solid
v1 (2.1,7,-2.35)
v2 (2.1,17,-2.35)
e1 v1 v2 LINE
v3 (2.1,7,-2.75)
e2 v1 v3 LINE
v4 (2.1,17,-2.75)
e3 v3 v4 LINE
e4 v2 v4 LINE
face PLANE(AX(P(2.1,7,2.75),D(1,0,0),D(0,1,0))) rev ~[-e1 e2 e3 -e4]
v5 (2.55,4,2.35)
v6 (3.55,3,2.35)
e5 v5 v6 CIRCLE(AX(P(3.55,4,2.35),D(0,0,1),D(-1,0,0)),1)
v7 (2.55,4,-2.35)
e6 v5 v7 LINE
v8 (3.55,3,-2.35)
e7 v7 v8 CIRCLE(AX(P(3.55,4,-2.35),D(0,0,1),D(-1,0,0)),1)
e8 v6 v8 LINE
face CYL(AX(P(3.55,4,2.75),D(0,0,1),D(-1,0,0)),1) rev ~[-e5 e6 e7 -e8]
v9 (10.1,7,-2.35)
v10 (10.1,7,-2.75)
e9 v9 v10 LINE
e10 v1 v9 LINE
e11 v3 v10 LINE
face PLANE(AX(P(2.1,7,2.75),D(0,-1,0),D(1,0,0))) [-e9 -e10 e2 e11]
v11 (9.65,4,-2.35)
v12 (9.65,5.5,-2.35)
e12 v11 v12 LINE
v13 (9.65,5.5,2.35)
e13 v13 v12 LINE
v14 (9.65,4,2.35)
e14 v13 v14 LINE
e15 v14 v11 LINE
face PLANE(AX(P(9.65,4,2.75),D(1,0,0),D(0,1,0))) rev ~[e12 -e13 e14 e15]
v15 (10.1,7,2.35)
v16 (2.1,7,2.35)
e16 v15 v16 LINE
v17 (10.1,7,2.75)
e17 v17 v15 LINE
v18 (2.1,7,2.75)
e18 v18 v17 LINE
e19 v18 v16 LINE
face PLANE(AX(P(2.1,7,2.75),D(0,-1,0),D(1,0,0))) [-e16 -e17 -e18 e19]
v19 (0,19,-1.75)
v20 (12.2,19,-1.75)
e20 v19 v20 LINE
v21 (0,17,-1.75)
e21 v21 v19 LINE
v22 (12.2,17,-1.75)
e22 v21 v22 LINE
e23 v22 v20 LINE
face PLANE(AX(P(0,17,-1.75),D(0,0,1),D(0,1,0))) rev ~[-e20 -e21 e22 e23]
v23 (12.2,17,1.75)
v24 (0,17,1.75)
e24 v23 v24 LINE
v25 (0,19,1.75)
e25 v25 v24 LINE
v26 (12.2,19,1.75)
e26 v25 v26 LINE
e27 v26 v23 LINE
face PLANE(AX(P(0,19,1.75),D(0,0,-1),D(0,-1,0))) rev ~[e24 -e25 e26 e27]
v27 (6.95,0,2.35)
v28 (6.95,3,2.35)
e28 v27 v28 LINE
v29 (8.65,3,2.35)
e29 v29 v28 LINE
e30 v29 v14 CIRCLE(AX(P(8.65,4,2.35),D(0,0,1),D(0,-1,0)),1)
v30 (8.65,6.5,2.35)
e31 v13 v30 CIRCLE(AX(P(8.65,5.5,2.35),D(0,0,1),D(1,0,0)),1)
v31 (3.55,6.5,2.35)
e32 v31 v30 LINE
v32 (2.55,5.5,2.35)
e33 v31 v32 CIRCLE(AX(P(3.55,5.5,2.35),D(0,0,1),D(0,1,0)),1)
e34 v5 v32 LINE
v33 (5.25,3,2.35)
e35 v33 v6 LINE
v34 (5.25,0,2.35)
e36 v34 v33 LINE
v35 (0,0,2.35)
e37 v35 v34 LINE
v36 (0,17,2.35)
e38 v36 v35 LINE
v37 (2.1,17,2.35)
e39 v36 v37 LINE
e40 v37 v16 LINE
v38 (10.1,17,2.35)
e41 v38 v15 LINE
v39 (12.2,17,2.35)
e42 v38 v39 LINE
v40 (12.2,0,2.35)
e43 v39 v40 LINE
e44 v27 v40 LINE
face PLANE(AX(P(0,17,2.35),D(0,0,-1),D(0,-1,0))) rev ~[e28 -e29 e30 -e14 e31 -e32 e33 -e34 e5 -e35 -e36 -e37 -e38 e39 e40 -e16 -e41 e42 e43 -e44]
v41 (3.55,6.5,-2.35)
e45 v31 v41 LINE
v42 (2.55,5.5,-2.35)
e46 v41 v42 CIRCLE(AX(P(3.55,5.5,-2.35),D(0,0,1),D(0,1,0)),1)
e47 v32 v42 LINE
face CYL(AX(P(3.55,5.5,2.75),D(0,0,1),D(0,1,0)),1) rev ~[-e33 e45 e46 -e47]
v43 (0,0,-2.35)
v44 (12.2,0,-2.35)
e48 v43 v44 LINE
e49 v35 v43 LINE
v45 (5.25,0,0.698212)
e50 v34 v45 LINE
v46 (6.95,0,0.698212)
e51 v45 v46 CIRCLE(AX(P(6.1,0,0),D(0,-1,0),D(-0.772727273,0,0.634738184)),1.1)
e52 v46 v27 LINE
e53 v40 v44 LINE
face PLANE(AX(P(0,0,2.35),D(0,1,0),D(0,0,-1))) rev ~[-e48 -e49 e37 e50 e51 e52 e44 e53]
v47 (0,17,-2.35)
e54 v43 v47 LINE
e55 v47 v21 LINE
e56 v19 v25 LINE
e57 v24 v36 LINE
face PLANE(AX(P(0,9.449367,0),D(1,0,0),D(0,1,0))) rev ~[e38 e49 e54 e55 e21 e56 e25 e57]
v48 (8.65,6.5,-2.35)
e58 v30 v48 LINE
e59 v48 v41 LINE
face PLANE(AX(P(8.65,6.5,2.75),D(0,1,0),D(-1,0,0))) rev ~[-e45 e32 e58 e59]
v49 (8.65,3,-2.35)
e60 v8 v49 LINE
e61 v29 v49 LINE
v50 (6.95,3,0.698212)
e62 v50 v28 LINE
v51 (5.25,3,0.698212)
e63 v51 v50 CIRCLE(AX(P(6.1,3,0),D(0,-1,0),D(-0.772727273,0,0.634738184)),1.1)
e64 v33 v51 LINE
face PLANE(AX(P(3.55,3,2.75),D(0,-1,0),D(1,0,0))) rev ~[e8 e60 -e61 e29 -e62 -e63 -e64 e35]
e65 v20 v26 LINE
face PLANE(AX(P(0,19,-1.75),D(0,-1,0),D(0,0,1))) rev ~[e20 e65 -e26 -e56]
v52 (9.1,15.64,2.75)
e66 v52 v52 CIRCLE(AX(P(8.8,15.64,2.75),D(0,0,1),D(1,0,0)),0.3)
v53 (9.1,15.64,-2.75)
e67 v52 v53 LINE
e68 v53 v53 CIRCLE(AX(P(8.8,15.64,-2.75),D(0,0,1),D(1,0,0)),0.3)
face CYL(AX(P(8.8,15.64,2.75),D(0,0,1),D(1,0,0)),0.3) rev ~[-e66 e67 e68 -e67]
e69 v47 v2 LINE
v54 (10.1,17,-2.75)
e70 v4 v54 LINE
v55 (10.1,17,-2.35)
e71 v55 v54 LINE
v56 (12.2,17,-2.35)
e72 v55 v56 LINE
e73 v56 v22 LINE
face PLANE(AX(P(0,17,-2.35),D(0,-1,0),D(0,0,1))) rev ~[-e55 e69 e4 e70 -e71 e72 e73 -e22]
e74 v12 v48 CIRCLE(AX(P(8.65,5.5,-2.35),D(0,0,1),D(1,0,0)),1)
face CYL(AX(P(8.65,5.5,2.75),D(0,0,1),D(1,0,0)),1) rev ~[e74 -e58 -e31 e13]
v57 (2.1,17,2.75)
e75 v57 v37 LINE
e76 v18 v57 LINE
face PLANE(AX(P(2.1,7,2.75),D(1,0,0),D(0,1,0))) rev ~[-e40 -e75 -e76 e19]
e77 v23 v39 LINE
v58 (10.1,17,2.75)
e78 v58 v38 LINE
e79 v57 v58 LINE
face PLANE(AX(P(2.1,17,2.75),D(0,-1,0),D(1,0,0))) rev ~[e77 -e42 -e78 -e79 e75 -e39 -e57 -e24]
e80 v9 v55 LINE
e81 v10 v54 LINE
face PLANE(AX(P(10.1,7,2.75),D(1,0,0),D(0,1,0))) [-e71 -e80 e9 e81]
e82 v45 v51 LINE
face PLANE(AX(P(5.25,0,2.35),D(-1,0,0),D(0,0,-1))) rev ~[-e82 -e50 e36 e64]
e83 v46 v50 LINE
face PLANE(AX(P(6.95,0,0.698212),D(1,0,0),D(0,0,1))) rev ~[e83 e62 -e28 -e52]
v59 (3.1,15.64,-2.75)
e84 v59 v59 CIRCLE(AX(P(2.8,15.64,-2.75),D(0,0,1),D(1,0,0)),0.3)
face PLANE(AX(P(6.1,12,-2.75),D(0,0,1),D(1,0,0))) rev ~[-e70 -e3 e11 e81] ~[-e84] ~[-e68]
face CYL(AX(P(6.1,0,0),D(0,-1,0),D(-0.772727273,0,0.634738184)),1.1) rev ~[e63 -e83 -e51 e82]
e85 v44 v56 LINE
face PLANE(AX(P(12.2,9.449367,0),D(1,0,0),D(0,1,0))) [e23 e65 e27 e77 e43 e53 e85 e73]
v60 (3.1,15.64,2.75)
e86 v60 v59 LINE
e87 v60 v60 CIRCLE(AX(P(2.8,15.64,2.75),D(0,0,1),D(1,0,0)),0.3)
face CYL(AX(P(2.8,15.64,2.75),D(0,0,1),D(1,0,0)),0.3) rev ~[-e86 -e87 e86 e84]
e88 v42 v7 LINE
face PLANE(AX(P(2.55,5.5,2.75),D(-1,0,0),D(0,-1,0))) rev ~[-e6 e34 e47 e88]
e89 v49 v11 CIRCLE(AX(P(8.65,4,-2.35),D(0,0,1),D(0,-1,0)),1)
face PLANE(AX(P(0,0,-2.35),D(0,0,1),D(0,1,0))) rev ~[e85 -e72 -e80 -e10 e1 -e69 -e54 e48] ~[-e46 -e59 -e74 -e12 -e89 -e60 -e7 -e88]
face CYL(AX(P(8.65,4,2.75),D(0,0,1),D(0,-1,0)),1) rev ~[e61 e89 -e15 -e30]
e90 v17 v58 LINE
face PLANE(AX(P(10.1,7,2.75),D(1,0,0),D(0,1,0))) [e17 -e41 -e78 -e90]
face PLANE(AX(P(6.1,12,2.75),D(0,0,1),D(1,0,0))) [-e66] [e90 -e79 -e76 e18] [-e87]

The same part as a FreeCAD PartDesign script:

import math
import FreeCAD as App
import Part
import Sketcher
Q = App.Units.Quantity

doc = App.newDocument("Part")
body = doc.addObject("PartDesign::Body", "Body")

sketch1 = body.newObject("Sketcher::SketchObject", "Sketch")
sketch1.AttachmentSupport = (doc.getObject("YZ_Plane"), [""])
sketch1.MapMode = "FlatFace"
sketch1.addGeometry([
    Part.LineSegment(App.Vector(0, 2.4, 0), App.Vector(0, -2.4, 0)),
    Part.LineSegment(App.Vector(0, -2.4, 0), App.Vector(17, -2.4, 0)),
    Part.LineSegment(App.Vector(17, -2.4, 0), App.Vector(17, -1.8, 0)),
    Part.LineSegment(App.Vector(17, -1.8, 0), App.Vector(19, -1.8, 0)),
    Part.LineSegment(App.Vector(19, -1.8, 0), App.Vector(19, 1.8, 0)),
    Part.LineSegment(App.Vector(19, 1.8, 0), App.Vector(17, 1.8, 0)),
    Part.LineSegment(App.Vector(17, 1.8, 0), App.Vector(17, 2.4, 0)),
    Part.LineSegment(App.Vector(17, 2.4, 0), App.Vector(0, 2.4, 0)),
], False)
sketch1.addConstraint([
    Sketcher.Constraint("Coincident", 0, 2, 1, 1),
    Sketcher.Constraint("Coincident", 1, 2, 2, 1),
    Sketcher.Constraint("Coincident", 2, 2, 3, 1),
    Sketcher.Constraint("Coincident", 3, 2, 4, 1),
    Sketcher.Constraint("Coincident", 4, 2, 5, 1),
    Sketcher.Constraint("Coincident", 5, 2, 6, 1),
    Sketcher.Constraint("Coincident", 6, 2, 7, 1),
    Sketcher.Constraint("Coincident", 7, 2, 0, 1),
    Sketcher.Constraint("Vertical", 0),
    Sketcher.Constraint("Horizontal", 1),
    Sketcher.Constraint("Vertical", 2),
    Sketcher.Constraint("Horizontal", 3),
    Sketcher.Constraint("Vertical", 4),
    Sketcher.Constraint("Horizontal", 5),
    Sketcher.Constraint("Vertical", 6),
    Sketcher.Constraint("Horizontal", 7),
    Sketcher.Constraint("Symmetric", 0, 2, 7, 2, -1, 1),
    Sketcher.Constraint("Symmetric", 2, 2, 5, 2, -1),
    Sketcher.Constraint("DistanceX", 1, 1, 1, 2, Q("17 mm")),
    Sketcher.Constraint("DistanceX", 3, 1, 3, 2, Q("2 mm")),
    Sketcher.Constraint("DistanceY", 0, 2, 0, 1, Q("4.7 mm")),
    Sketcher.Constraint("DistanceY", 2, 1, 2, 2, Q("0.6 mm")),
])
pad1 = body.newObject("PartDesign::Pad", "Pad")
pad1.Profile = sketch1
pad1.Length = 12.2

sketch2 = body.newObject("Sketcher::SketchObject", "Sketch001")
sketch2.AttachmentSupport = (doc.getObject("XY_Plane"), [""])
sketch2.MapMode = "FlatFace"
sketch2.AttachmentOffset = App.Placement(App.Vector(0, 0, 2.75), App.Rotation())
sketch2.addGeometry([
    Part.LineSegment(App.Vector(2, 17, 0), App.Vector(2, 7, 0)),
    Part.LineSegment(App.Vector(2, 7, 0), App.Vector(10, 7, 0)),
    Part.LineSegment(App.Vector(10, 7, 0), App.Vector(10, 17, 0)),
    Part.LineSegment(App.Vector(10, 17, 0), App.Vector(2, 17, 0)),
], False)
sketch2.addConstraint([
    Sketcher.Constraint("Coincident", 0, 2, 1, 1),
    Sketcher.Constraint("Coincident", 1, 2, 2, 1),
    Sketcher.Constraint("Coincident", 2, 2, 3, 1),
    Sketcher.Constraint("Coincident", 3, 2, 0, 1),
    Sketcher.Constraint("Vertical", 0),
    Sketcher.Constraint("Horizontal", 1),
    Sketcher.Constraint("Vertical", 2),
    Sketcher.Constraint("Horizontal", 3),
    Sketcher.Constraint("DistanceX", 1, 1, 1, 2, Q("8 mm")),
    Sketcher.Constraint("DistanceY", 0, 2, 0, 1, Q("10 mm")),
    Sketcher.Constraint("DistanceY", -1, 1, 0, 2, Q("7 mm")),
    Sketcher.Constraint("DistanceX", -1, 1, 0, 2, Q("2.1 mm")),
])
pad2 = body.newObject("PartDesign::Pad", "Pad001")
pad2.Profile = sketch2
pad2.Length = 5.5
pad2.Reversed = True

sketch3 = body.newObject("Sketcher::SketchObject", "Sketch002")
sketch3.AttachmentSupport = (doc.getObject("XY_Plane"), [""])
sketch3.MapMode = "FlatFace"
sketch3.AttachmentOffset = App.Placement(App.Vector(0, 0, 2.75), App.Rotation())
sketch3.addGeometry([
    Part.ArcOfCircle(Part.Circle(App.Vector(3.55, 4, 0), App.Vector(0, 0, 1), 1), math.radians(180), math.radians(270)),
    Part.LineSegment(App.Vector(3.55, 3, 0), App.Vector(8.65, 3, 0)),
    Part.ArcOfCircle(Part.Circle(App.Vector(8.65, 4, 0), App.Vector(0, 0, 1), 1), math.radians(-90), math.radians(0)),
    Part.LineSegment(App.Vector(9.65, 4, 0), App.Vector(9.65, 5.5, 0)),
    Part.ArcOfCircle(Part.Circle(App.Vector(8.65, 5.5, 0), App.Vector(0, 0, 1), 1), math.radians(0), math.radians(90)),
    Part.LineSegment(App.Vector(8.65, 6.5, 0), App.Vector(3.55, 6.5, 0)),
    Part.ArcOfCircle(Part.Circle(App.Vector(3.55, 5.5, 0), App.Vector(0, 0, 1), 1), math.radians(90), math.radians(180)),
    Part.LineSegment(App.Vector(2.55, 5.5, 0), App.Vector(2.55, 4, 0)),
    Part.Circle(App.Vector(2.8, 15.64, 0), App.Vector(0, 0, 1), 0.3),
    Part.Circle(App.Vector(8.8, 15.64, 0), App.Vector(0, 0, 1), 0.3),
], False)
sketch3.addConstraint([
    Sketcher.Constraint("Tangent", 0, 2, 1, 1),
    Sketcher.Constraint("Tangent", 1, 2, 2, 1),
    Sketcher.Constraint("Tangent", 2, 2, 3, 1),
    Sketcher.Constraint("Tangent", 3, 2, 4, 1),
    Sketcher.Constraint("Tangent", 4, 2, 5, 1),
    Sketcher.Constraint("Tangent", 5, 2, 6, 1),
    Sketcher.Constraint("Tangent", 6, 2, 7, 1),
    Sketcher.Constraint("Tangent", 7, 2, 0, 1),
    Sketcher.Constraint("Horizontal", 1),
    Sketcher.Constraint("Vertical", 3),
    Sketcher.Constraint("Horizontal", 5),
    Sketcher.Constraint("Vertical", 7),
    Sketcher.Constraint("Equal", 0, 2),
    Sketcher.Constraint("Equal", 2, 4),
    Sketcher.Constraint("Equal", 4, 6),
    Sketcher.Constraint("Equal", 8, 9),
    Sketcher.Constraint("Horizontal", 8, 3, 9, 3),
    Sketcher.Constraint("Radius", 0, Q("1 mm")),
    Sketcher.Constraint("Diameter", 8, Q("0.6 mm")),
    Sketcher.Constraint("DistanceX", 1, 1, 1, 2, Q("5.1 mm")),
    Sketcher.Constraint("DistanceY", 3, 1, 3, 2, Q("1.5 mm")),
    Sketcher.Constraint("DistanceY", -1, 1, 0, 3, Q("4 mm")),
    Sketcher.Constraint("DistanceX", 8, 3, 9, 3, Q("6 mm")),
    Sketcher.Constraint("DistanceX", -1, 1, 8, 3, Q("2.8 mm")),
    Sketcher.Constraint("DistanceX", -1, 1, 0, 3, Q("3.55 mm")),
    Sketcher.Constraint("DistanceY", -1, 1, 8, 3, Q("15.64 mm")),
])
pocket1 = body.newObject("PartDesign::Pocket", "Pocket")
pocket1.Profile = sketch3
pocket1.Type = "ThroughAll"

sketch4 = body.newObject("Sketcher::SketchObject", "Sketch003")
sketch4.AttachmentSupport = (doc.getObject("XZ_Plane"), [""])
sketch4.MapMode = "FlatFace"
sketch4.addGeometry([
    Part.LineSegment(App.Vector(7, 2.4, 0), App.Vector(5.2, 2.4, 0)),
    Part.LineSegment(App.Vector(5.2, 2.4, 0), App.Vector(5.2, 0.7, 0)),
    Part.ArcOfCircle(Part.Circle(App.Vector(6.1, 0, 0), App.Vector(0, 0, 1), 1.1), math.radians(141), math.radians(399)),
    Part.LineSegment(App.Vector(7, 0.7, 0), App.Vector(7, 2.4, 0)),
], False)
sketch4.addConstraint([
    Sketcher.Constraint("Coincident", 0, 2, 1, 1),
    Sketcher.Constraint("Coincident", 1, 2, 2, 1),
    Sketcher.Constraint("Coincident", 2, 2, 3, 1),
    Sketcher.Constraint("Coincident", 3, 2, 0, 1),
    Sketcher.Constraint("Horizontal", 0),
    Sketcher.Constraint("Vertical", 1),
    Sketcher.Constraint("Vertical", 3),
    Sketcher.Constraint("PointOnObject", 2, 3, -1),
    Sketcher.Constraint("Horizontal", 1, 2, 2, 2),
    Sketcher.Constraint("Radius", 2, Q("1.1 mm")),
    Sketcher.Constraint("DistanceX", 0, 2, 0, 1, Q("1.7 mm")),
    Sketcher.Constraint("DistanceX", -1, 1, 2, 3, Q("6.1 mm")),
    Sketcher.Constraint("DistanceY", -1, 1, 0, 2, Q("2.35 mm")),
])
pocket2 = body.newObject("PartDesign::Pocket", "Pocket001")
pocket2.Profile = sketch4
pocket2.Length = 3

doc.recompute()
